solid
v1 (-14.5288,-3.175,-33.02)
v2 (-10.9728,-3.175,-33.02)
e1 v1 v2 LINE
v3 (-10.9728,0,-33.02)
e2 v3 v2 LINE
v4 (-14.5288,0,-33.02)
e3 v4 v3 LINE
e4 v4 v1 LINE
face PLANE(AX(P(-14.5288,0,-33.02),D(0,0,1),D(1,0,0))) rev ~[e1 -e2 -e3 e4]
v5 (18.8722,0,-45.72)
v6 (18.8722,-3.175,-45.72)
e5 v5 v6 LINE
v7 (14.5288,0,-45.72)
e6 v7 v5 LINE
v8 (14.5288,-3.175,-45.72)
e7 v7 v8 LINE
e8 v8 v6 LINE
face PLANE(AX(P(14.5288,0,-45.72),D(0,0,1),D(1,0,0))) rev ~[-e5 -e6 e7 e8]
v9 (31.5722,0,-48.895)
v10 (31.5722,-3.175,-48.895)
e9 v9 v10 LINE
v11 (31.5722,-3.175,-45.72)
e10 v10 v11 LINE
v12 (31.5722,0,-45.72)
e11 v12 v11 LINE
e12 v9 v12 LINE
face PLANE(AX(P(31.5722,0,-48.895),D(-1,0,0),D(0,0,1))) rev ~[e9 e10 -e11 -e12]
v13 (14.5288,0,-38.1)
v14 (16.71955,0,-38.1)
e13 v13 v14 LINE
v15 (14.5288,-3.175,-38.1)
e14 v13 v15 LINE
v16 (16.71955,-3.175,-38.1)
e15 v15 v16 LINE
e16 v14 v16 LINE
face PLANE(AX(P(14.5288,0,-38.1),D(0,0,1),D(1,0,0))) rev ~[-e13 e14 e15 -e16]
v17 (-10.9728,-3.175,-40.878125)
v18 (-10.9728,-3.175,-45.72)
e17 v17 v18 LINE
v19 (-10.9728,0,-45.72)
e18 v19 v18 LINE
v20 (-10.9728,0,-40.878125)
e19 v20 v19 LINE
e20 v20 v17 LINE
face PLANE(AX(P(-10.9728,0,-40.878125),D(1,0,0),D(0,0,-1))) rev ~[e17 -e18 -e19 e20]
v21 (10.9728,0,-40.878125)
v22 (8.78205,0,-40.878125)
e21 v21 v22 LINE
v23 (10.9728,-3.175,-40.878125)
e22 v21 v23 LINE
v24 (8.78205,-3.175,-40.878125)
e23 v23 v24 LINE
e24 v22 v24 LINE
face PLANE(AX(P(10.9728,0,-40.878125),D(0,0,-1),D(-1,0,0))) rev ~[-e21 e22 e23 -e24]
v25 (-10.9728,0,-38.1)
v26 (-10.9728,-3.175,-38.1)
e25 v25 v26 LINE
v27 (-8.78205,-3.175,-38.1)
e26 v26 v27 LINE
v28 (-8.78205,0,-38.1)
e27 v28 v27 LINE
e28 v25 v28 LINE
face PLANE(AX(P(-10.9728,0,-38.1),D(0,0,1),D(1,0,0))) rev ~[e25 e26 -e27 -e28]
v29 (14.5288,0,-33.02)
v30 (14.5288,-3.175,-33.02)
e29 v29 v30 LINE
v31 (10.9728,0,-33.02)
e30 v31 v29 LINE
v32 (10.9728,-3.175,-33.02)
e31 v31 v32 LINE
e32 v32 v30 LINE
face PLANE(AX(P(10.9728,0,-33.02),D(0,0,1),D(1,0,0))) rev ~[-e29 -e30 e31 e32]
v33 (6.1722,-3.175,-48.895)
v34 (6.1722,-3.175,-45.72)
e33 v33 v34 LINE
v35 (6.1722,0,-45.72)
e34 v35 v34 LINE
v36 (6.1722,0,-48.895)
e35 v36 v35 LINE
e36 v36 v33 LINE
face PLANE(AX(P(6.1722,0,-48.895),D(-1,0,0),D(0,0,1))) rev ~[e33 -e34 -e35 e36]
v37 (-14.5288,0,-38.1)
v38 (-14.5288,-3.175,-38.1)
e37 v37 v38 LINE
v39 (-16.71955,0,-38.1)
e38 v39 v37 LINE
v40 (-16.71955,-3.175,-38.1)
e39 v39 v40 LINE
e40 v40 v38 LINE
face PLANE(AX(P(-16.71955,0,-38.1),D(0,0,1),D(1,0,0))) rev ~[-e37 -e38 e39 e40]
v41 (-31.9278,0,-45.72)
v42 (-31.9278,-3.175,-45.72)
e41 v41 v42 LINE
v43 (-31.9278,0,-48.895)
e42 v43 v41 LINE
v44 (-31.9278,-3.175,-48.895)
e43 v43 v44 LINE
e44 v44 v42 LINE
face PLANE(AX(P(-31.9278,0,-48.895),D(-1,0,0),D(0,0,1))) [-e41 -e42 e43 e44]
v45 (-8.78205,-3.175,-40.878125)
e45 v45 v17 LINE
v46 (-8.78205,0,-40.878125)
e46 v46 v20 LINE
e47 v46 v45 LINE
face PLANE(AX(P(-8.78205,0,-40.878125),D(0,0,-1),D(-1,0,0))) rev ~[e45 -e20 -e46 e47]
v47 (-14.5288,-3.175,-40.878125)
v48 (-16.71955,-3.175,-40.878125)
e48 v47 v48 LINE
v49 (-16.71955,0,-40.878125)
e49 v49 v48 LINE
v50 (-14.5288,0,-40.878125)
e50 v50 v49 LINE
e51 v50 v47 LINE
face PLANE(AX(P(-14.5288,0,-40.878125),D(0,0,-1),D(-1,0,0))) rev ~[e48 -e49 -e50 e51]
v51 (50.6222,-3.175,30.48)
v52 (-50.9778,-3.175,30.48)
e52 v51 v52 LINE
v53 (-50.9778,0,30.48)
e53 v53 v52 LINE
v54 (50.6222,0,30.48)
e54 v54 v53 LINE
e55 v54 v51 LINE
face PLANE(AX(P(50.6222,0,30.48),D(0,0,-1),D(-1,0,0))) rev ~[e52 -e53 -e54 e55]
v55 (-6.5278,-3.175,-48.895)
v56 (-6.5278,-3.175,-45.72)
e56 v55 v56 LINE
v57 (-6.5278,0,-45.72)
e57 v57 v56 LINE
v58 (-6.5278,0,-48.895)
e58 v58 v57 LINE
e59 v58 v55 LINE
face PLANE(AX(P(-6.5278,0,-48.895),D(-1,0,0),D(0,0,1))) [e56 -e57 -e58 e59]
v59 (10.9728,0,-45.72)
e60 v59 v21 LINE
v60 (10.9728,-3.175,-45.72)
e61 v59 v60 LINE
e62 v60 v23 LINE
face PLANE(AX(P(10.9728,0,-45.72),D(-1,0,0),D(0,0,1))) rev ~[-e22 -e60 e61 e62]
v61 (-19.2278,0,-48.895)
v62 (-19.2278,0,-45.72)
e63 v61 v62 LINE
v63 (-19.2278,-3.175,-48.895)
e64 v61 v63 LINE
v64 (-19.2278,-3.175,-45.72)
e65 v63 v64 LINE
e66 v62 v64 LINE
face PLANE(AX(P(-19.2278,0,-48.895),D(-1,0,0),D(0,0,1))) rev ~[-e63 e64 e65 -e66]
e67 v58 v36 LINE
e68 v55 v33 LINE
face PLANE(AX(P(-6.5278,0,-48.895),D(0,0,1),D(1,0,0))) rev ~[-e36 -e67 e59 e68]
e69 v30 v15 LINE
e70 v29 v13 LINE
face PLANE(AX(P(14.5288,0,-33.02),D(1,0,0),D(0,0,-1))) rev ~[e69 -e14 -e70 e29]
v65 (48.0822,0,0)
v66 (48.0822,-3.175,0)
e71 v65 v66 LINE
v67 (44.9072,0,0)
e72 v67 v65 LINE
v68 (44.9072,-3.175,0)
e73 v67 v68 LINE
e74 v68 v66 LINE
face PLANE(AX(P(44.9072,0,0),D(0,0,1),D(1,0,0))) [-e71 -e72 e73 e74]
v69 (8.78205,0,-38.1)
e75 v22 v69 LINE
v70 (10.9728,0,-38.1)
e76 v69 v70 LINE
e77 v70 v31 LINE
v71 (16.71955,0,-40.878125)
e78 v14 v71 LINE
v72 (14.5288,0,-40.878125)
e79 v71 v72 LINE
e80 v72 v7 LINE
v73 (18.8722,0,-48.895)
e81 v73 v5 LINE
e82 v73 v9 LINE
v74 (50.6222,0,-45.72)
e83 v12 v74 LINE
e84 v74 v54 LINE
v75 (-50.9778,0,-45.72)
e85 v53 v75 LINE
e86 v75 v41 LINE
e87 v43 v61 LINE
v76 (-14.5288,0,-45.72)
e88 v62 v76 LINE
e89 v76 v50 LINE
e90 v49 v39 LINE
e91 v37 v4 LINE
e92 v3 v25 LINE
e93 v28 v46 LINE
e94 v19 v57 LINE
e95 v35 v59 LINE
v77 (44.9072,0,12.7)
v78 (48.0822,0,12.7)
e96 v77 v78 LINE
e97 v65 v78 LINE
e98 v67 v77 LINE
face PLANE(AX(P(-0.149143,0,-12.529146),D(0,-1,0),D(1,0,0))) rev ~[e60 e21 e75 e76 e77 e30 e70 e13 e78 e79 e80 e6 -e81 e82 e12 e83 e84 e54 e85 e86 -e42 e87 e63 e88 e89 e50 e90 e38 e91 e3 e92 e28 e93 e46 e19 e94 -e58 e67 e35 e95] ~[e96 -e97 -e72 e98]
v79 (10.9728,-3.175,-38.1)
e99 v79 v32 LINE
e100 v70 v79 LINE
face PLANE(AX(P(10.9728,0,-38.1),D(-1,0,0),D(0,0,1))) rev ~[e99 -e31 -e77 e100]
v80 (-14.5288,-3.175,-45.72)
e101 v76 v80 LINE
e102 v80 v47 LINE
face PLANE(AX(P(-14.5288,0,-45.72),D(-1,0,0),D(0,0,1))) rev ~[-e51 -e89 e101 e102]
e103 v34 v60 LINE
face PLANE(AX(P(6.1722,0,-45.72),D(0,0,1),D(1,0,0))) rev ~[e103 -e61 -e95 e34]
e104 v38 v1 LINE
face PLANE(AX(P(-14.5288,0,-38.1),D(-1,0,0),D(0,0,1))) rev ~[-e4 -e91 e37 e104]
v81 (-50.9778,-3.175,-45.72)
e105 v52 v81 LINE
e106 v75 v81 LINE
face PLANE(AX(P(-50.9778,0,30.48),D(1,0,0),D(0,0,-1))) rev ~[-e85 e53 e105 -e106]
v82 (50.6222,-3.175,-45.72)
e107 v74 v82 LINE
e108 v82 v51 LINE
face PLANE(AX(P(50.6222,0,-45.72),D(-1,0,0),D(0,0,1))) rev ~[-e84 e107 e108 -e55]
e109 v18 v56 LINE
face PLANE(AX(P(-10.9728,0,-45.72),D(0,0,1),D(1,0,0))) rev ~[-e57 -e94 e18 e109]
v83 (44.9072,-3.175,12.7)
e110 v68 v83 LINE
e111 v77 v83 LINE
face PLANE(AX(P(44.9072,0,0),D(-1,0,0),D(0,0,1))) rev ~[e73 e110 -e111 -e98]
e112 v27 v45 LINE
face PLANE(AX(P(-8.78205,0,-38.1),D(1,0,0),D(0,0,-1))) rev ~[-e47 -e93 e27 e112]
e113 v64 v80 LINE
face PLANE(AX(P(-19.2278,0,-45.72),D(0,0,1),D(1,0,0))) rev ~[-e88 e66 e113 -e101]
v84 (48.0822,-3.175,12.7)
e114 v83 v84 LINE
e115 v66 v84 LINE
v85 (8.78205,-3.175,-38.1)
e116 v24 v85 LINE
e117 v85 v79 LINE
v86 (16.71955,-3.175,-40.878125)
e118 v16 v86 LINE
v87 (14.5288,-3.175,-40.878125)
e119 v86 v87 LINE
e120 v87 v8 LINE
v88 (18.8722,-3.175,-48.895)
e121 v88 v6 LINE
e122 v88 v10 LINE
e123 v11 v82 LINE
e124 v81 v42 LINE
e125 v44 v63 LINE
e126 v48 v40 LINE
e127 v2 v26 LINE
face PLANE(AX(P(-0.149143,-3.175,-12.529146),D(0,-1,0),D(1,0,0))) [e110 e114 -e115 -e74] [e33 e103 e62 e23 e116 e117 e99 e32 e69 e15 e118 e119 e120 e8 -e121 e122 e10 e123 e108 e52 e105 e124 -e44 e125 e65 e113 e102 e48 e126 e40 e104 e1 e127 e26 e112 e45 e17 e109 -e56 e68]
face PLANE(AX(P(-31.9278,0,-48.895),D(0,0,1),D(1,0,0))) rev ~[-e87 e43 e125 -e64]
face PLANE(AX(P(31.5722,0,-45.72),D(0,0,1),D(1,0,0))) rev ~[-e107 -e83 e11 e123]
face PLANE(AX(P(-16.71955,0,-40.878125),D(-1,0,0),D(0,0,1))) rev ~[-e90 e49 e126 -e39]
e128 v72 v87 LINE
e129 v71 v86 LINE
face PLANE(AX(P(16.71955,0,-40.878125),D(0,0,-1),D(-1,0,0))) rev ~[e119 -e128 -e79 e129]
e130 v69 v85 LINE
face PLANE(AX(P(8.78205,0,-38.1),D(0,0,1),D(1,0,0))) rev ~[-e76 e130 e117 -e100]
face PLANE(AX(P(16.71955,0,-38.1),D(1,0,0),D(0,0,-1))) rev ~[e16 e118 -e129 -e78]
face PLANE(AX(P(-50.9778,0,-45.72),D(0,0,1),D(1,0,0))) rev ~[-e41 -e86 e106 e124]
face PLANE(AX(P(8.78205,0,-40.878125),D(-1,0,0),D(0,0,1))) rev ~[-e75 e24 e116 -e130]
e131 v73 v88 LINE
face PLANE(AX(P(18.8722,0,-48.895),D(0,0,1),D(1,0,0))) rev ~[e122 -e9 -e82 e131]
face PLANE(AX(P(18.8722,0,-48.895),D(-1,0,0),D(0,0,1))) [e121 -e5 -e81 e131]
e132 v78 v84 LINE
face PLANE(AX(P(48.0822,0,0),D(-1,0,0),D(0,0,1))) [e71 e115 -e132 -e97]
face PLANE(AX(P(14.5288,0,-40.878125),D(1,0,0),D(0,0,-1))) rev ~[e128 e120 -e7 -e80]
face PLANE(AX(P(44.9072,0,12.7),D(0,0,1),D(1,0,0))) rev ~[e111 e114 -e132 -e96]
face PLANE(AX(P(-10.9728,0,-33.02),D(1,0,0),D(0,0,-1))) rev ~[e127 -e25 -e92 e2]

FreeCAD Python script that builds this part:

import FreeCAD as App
import Part
import Sketcher
from FreeCAD import Vector
Q = App.Units.Quantity


def add_polygon(sketch, points):
    """Adds a closed chain of lines whose ends are joined by coincident constraints."""
    first, n = sketch.GeometryCount, len(points)
    for a, b in zip(points, points[1:] + points[:1]):
        sketch.addGeometry(Part.LineSegment(App.Vector(*a, 0), App.Vector(*b, 0)), False)
    for i in range(n):
        sketch.addConstraint(Sketcher.Constraint("Coincident", first + i, 2, first + (i + 1) % n, 1))

doc = App.newDocument("Part")
body = doc.addObject("PartDesign::Body", "Body")

sketch1 = doc.addObject("Sketcher::SketchObject", "Sketch")
body.addObject(sketch1)
sketch1.AttachmentSupport = (doc.XZ_Plane, [""])
sketch1.MapMode = "FlatFace"
add_polygon(sketch1, [(50.6, 30.5), (-51, 30.5), (-51, -45.7), (-31.9, -45.7), (-31.9, -48.9), (-19.2, -48.9), (-19.2, -45.7), (-14.5, -45.7), (-14.5, -40.9), (-16.7, -40.9), (-16.7, -38.1), (-14.5, -38.1), (-14.5, -33), (-11, -33), (-11, -38.1), (-8.8, -38.1), (-8.8, -40.9), (-11, -40.9), (-11, -45.7), (-6.5, -45.7), (-6.5, -48.9), (6.2, -48.9), (6.2, -45.7), (11, -45.7), (11, -40.9), (8.8, -40.9), (8.8, -38.1), (11, -38.1), (11, -33), (14.5, -33), (14.5, -38.1), (16.7, -38.1), (16.7, -40.9), (14.5, -40.9), (14.5, -45.7), (18.9, -45.7), (18.9, -48.9), (31.6, -48.9), (31.6, -45.7), (50.6, -45.7)])
add_polygon(sketch1, [(48.1, 0), (44.9, 0), (44.9, 12.7), (48.1, 12.7)])
sketch1.addConstraint(Sketcher.Constraint("Horizontal", 0))
sketch1.addConstraint(Sketcher.Constraint("Vertical", 1))
sketch1.addConstraint(Sketcher.Constraint("Horizontal", 2))
sketch1.addConstraint(Sketcher.Constraint("Vertical", 3))
sketch1.addConstraint(Sketcher.Constraint("Horizontal", 4))
sketch1.addConstraint(Sketcher.Constraint("Vertical", 5))
sketch1.addConstraint(Sketcher.Constraint("Horizontal", 6))
sketch1.addConstraint(Sketcher.Constraint("Vertical", 7))
sketch1.addConstraint(Sketcher.Constraint("Horizontal", 8))
sketch1.addConstraint(Sketcher.Constraint("Vertical", 9))
sketch1.addConstraint(Sketcher.Constraint("Horizontal", 10))
sketch1.addConstraint(Sketcher.Constraint("Vertical", 11))
sketch1.addConstraint(Sketcher.Constraint("Horizontal", 12))
sketch1.addConstraint(Sketcher.Constraint("Vertical", 13))
sketch1.addConstraint(Sketcher.Constraint("Horizontal", 14))
sketch1.addConstraint(Sketcher.Constraint("Vertical", 15))
sketch1.addConstraint(Sketcher.Constraint("Horizontal", 16))
sketch1.addConstraint(Sketcher.Constraint("Vertical", 17))
sketch1.addConstraint(Sketcher.Constraint("Horizontal", 18))
sketch1.addConstraint(Sketcher.Constraint("Vertical", 19))
sketch1.addConstraint(Sketcher.Constraint("Horizontal", 20))
sketch1.addConstraint(Sketcher.Constraint("Vertical", 21))
sketch1.addConstraint(Sketcher.Constraint("Horizontal", 22))
sketch1.addConstraint(Sketcher.Constraint("Vertical", 23))
sketch1.addConstraint(Sketcher.Constraint("Horizontal", 24))
sketch1.addConstraint(Sketcher.Constraint("Vertical", 25))
sketch1.addConstraint(Sketcher.Constraint("Horizontal", 26))
sketch1.addConstraint(Sketcher.Constraint("Vertical", 27))
sketch1.addConstraint(Sketcher.Constraint("Horizontal", 28))
sketch1.addConstraint(Sketcher.Constraint("Vertical", 29))
sketch1.addConstraint(Sketcher.Constraint("Horizontal", 30))
sketch1.addConstraint(Sketcher.Constraint("Vertical", 31))
sketch1.addConstraint(Sketcher.Constraint("Horizontal", 32))
sketch1.addConstraint(Sketcher.Constraint("Vertical", 33))
sketch1.addConstraint(Sketcher.Constraint("Horizontal", 34))
sketch1.addConstraint(Sketcher.Constraint("Vertical", 35))
sketch1.addConstraint(Sketcher.Constraint("Horizontal", 36))
sketch1.addConstraint(Sketcher.Constraint("Vertical", 37))
sketch1.addConstraint(Sketcher.Constraint("Horizontal", 38))
sketch1.addConstraint(Sketcher.Constraint("Vertical", 39))
sketch1.addConstraint(Sketcher.Constraint("Horizontal", 40))
sketch1.addConstraint(Sketcher.Constraint("Vertical", 41))
sketch1.addConstraint(Sketcher.Constraint("Horizontal", 42))
sketch1.addConstraint(Sketcher.Constraint("Vertical", 43))
sketch1.addConstraint(Sketcher.Constraint("Symmetric", 17, 2, 22, 2, -2))
sketch1.addConstraint(Sketcher.Constraint("Symmetric", 15, 2, 24, 2, -2))
sketch1.addConstraint(Sketcher.Constraint("Symmetric", 13, 2, 26, 2, -2))
sketch1.addConstraint(Sketcher.Constraint("Symmetric", 11, 2, 28, 2, -2))
sketch1.addConstraint(Sketcher.Constraint("Symmetric", 9, 2, 30, 2, -2))
sketch1.addConstraint(Sketcher.Constraint("Symmetric", 7, 2, 32, 2, -2))
sketch1.addConstraint(Sketcher.Constraint("PointOnObject", 40, 2, -1))
sketch1.addConstraint(Sketcher.Constraint("Horizontal", 2, 2, 5, 2))
sketch1.addConstraint(Sketcher.Constraint("Horizontal", 10, 2, 13, 2))
sketch1.addConstraint(Sketcher.Constraint("Horizontal", 8, 2, 15, 2))
sketch1.addConstraint(Sketcher.Constraint("Horizontal", 6, 2, 17, 2))
sketch1.addConstraint(Sketcher.Constraint("Horizontal", 4, 2, 19, 2))
sketch1.addConstraint(Sketcher.Constraint("Horizontal", 22, 2, 33, 2))
sketch1.addConstraint(Sketcher.Constraint("Horizontal", 20, 2, 35, 2))
sketch1.addConstraint(Sketcher.Constraint("Horizontal", 34, 2, 37, 2))
sketch1.addConstraint(Sketcher.Constraint("Vertical", 7, 2, 10, 2))
sketch1.addConstraint(Sketcher.Constraint("Vertical", 13, 2, 16, 2))
sketch1.addConstraint(Sketcher.Constraint("Equal", 10, 14))
sketch1.addConstraint(Sketcher.Constraint("Equal", 4, 20))
sketch1.addConstraint(Sketcher.Constraint("Equal", 20, 36))
sketch1.addConstraint(Sketcher.Constraint("Equal", 2, 38))
sketch1.addConstraint(Sketcher.Constraint("Equal", 42, 3))
sketch1.addConstraint(Sketcher.Constraint("Equal", 36, 41))
sketch1.addConstraint(Sketcher.Constraint("DistanceX", 0, 2, 0, 1, Q("4 in")))
sketch1.addConstraint(Sketcher.Constraint("DistanceY", 1, 2, 1, 1, Q("3 in")))
sketch1.addConstraint(Sketcher.Constraint("DistanceX", 4, 1, 4, 2, Q("0.5 in")))
sketch1.addConstraint(Sketcher.Constraint("DistanceY", 11, 1, 11, 2, Q("0.2 in")))
sketch1.addConstraint(Sketcher.Constraint("DistanceY", 30, 2, 41, 2, Q("2 in")))
sketch1.addConstraint(Sketcher.Constraint("DistanceX", 2, 1, 2, 2, Q("0.75 in")))
sketch1.addConstraint(Sketcher.Constraint("DistanceX", 12, 1, 12, 2, Q("0.14 in")))
sketch1.addConstraint(Sketcher.Constraint("DistanceY", -1, 1, 0, 2, Q("1.2 in")))
sketch1.addConstraint(Sketcher.Constraint("DistanceX", 42, 2, 39, 2, Q("0.1 in")))
sketch1.addConstraint(Sketcher.Constraint("DistanceX", 6, 1, 6, 2, Q("0.185 in")))
sketch1.addConstraint(Sketcher.Constraint("DistanceX", 18, 1, 18, 2, Q("0.175 in")))
sketch1.addConstraint(Sketcher.Constraint("DistanceX", 22, 1, 22, 2, Q("0.189 in")))
sketch1.addConstraint(Sketcher.Constraint("DistanceX", 40, 2, 40, 1, Q("0.125 in")))
sketch1.addConstraint(Sketcher.Constraint("DistanceY", 9, 1, 9, 2, Q("0.109375 in")))
sketch1.addConstraint(Sketcher.Constraint("DistanceX", 8, 2, 8, 1, 2.19075))
pad1 = doc.addObject("PartDesign::Pad", "Pad")
body.addObject(pad1)
pad1.Profile = sketch1
pad1.Length = Q("0.125 in")

doc.recompute()
